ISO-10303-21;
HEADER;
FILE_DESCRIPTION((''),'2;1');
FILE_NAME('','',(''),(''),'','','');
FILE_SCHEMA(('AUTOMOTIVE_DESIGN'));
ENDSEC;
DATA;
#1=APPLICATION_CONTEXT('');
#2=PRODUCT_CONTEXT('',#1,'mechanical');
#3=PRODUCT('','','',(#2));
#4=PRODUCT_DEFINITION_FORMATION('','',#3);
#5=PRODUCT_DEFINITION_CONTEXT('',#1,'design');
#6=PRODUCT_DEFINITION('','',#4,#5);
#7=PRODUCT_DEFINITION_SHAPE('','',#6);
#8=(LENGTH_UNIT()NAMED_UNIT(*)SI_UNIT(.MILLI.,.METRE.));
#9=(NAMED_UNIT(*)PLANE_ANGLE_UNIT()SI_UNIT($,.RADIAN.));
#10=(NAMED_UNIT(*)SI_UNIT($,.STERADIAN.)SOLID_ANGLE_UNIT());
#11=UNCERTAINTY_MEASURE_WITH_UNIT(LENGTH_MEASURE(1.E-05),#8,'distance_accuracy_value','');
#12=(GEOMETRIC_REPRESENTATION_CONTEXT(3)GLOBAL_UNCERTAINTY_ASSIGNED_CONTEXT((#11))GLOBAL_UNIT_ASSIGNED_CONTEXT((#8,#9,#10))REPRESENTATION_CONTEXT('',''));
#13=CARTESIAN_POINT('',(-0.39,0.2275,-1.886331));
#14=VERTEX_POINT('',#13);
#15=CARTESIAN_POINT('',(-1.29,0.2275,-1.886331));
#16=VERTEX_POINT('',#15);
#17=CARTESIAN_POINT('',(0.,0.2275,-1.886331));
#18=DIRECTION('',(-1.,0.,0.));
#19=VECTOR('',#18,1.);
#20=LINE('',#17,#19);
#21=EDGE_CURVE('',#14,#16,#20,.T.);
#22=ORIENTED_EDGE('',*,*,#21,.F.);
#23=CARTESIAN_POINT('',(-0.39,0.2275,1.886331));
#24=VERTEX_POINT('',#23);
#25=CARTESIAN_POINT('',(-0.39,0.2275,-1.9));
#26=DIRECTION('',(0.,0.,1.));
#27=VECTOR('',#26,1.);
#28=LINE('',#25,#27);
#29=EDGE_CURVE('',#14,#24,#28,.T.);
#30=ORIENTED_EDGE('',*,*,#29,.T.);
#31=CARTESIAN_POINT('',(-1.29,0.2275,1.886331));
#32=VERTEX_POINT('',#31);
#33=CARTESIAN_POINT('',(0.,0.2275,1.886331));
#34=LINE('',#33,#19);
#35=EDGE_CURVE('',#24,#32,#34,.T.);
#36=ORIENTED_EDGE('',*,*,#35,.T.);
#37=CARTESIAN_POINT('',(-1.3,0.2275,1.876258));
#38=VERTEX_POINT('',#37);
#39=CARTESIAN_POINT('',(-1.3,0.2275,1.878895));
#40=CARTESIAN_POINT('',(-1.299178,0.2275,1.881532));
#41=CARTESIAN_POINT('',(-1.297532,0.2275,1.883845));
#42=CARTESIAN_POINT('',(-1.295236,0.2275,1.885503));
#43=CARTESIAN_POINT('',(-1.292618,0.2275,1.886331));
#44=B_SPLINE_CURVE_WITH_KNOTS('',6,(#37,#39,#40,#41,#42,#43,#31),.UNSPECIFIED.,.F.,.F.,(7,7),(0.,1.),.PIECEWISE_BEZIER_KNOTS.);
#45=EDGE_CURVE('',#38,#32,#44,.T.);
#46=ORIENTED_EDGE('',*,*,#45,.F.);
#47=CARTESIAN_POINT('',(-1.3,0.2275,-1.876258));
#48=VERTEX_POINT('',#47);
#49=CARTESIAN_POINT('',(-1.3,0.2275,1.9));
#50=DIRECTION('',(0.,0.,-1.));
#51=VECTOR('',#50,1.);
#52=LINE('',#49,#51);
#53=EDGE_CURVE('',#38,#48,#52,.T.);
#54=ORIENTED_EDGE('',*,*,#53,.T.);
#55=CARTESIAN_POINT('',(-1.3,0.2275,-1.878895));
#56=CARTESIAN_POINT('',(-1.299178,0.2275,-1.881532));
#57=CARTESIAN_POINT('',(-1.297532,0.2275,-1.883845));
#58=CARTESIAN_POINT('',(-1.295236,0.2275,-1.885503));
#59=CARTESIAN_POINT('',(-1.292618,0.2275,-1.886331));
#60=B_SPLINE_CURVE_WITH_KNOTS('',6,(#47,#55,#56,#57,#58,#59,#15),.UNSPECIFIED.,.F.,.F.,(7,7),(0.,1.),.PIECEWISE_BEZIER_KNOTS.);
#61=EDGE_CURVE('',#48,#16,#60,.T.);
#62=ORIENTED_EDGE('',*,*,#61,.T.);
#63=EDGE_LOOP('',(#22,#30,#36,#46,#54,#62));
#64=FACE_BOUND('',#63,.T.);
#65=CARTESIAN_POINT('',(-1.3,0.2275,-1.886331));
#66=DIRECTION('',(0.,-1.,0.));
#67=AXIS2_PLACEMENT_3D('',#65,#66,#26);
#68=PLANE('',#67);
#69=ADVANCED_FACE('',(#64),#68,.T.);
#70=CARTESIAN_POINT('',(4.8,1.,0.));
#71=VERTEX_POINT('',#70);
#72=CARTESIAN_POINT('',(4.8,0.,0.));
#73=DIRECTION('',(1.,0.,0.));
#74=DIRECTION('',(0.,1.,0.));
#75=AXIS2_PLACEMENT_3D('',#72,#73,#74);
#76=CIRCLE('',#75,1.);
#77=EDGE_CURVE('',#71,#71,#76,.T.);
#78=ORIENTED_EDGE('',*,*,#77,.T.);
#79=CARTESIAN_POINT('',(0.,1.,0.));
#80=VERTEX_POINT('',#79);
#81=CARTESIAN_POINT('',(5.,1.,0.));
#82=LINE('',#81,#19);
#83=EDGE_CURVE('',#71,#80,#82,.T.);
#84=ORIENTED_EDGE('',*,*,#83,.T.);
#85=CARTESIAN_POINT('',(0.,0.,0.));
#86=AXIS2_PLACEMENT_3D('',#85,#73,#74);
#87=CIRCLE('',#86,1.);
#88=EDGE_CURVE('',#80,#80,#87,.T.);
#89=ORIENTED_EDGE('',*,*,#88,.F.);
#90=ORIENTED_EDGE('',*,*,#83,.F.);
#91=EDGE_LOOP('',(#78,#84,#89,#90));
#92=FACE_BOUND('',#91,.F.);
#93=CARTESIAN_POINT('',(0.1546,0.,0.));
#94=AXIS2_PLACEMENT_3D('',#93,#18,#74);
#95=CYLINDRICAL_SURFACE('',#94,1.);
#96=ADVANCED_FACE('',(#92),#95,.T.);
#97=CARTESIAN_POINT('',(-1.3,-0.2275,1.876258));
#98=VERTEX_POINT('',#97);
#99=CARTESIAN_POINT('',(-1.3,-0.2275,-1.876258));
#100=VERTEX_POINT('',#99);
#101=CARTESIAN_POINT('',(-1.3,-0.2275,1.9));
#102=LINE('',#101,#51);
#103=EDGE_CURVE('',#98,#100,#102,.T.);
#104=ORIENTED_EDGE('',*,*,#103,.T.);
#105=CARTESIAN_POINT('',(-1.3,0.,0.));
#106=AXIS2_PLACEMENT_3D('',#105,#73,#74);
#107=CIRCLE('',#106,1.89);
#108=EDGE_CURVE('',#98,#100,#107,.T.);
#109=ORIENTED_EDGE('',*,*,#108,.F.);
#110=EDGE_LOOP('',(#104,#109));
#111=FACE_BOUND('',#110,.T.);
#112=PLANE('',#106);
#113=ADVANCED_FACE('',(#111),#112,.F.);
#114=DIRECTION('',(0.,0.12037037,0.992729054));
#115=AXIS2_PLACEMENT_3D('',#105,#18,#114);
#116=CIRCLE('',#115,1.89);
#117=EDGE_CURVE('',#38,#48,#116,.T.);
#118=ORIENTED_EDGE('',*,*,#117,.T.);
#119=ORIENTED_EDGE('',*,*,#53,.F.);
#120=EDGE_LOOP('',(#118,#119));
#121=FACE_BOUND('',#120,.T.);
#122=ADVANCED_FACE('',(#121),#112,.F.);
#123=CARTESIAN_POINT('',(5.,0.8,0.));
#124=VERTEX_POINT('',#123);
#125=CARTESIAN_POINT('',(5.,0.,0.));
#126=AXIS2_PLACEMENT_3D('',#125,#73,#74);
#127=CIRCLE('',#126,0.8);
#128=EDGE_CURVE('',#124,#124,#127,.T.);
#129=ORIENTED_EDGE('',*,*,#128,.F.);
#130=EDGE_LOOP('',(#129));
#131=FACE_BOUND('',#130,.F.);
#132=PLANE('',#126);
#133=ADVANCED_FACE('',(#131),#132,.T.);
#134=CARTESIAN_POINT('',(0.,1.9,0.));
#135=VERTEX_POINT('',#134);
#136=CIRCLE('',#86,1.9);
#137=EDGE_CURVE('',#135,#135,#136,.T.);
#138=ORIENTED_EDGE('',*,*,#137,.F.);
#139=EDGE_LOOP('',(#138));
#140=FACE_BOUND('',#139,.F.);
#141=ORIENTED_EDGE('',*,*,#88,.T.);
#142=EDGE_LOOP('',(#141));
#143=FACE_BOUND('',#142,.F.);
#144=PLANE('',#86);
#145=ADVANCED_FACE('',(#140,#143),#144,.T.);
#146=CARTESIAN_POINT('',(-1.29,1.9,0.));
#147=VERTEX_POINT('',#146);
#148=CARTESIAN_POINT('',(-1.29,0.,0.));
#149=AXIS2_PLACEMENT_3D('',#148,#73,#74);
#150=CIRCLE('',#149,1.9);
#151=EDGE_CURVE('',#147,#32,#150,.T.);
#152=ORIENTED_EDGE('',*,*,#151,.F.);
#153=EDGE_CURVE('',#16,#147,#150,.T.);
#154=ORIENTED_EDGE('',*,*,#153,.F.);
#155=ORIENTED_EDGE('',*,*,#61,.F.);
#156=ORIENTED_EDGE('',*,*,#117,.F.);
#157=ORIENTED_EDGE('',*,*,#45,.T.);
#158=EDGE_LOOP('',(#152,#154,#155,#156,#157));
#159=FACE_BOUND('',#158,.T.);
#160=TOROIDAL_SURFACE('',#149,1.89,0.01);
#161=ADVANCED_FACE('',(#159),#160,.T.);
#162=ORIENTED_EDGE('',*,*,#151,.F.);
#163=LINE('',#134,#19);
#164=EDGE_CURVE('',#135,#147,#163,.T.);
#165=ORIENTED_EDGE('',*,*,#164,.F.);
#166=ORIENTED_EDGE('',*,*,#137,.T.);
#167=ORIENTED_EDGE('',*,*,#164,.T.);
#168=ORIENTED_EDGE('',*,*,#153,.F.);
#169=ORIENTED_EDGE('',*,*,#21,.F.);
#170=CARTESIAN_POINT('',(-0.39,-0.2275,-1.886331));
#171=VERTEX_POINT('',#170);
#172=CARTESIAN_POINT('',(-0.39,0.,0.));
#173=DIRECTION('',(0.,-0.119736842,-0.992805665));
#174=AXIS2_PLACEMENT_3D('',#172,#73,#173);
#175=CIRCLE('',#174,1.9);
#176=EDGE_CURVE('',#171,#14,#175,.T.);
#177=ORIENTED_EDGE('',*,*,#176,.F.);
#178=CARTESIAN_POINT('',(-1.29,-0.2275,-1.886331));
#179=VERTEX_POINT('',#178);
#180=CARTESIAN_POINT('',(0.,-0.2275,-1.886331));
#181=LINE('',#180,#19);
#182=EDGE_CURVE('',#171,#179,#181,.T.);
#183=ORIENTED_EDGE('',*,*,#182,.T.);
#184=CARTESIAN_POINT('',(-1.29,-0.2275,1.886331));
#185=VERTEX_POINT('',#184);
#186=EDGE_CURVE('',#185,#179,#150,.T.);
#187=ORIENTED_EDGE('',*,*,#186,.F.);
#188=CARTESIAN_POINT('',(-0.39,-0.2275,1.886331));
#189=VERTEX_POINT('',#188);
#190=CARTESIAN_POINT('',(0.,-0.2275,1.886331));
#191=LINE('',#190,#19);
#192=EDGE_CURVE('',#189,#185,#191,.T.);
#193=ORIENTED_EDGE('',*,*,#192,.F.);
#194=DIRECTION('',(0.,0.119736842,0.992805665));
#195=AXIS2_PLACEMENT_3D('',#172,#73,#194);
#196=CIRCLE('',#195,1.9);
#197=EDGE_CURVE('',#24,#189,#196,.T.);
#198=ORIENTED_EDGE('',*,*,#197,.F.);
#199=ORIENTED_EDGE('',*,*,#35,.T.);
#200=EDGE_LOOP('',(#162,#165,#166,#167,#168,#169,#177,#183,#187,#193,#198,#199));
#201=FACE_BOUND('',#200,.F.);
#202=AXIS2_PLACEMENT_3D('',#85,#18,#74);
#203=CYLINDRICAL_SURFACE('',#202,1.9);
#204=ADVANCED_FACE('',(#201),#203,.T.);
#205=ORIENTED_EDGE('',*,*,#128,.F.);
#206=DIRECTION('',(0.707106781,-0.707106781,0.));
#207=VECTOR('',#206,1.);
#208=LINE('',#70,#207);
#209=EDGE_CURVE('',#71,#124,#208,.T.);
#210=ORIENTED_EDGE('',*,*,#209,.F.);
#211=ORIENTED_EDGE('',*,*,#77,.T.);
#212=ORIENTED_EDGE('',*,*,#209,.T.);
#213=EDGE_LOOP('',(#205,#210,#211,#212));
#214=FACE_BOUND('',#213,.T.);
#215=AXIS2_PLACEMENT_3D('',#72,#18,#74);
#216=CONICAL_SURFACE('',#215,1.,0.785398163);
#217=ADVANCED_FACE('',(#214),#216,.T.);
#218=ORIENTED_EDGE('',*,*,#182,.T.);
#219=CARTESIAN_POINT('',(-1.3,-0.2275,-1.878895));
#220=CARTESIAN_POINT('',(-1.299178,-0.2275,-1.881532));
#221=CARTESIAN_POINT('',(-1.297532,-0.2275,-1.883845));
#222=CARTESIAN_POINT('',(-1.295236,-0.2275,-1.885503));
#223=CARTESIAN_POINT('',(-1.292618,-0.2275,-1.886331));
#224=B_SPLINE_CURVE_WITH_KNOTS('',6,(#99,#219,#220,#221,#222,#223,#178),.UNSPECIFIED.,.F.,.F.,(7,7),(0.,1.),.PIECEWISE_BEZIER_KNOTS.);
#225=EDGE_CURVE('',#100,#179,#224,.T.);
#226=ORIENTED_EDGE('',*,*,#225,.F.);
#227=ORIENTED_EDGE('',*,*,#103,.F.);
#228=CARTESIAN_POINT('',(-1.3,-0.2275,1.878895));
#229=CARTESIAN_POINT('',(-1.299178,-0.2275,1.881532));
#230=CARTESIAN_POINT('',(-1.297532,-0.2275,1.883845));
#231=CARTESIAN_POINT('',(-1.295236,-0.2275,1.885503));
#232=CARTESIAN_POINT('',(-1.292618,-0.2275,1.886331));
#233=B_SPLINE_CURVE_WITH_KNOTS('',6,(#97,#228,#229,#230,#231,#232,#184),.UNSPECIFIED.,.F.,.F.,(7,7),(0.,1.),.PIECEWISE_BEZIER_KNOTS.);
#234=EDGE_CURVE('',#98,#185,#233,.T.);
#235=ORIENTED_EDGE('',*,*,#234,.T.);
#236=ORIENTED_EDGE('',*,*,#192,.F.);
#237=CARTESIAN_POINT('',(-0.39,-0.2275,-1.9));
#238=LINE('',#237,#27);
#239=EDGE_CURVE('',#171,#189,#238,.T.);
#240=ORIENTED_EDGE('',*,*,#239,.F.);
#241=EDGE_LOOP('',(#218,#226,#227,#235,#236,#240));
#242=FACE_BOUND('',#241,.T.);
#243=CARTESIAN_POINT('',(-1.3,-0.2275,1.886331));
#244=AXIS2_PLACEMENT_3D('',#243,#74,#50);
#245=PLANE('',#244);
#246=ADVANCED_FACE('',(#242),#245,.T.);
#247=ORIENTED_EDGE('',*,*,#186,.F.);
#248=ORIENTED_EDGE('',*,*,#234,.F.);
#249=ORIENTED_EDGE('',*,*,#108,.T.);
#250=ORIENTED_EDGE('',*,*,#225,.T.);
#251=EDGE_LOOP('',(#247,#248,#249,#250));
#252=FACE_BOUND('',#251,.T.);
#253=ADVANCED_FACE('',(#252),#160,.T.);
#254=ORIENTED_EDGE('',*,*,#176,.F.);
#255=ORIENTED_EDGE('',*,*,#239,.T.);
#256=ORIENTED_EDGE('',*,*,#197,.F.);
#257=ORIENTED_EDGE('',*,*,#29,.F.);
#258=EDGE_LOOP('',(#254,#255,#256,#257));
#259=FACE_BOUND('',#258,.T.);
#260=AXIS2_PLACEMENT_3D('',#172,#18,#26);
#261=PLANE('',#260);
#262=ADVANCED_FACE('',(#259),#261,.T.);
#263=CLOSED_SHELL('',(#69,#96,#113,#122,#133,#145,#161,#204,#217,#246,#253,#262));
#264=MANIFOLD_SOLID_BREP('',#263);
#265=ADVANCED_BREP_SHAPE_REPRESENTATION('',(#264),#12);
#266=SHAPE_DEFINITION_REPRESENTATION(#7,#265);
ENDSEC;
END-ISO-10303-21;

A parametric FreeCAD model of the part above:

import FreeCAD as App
import Part
import Sketcher


def edges_at(feature, points):
    """Names of the edges that pass closest to the given points."""
    edges = feature.Shape.Edges
    near = lambda p: min(range(len(edges)), key=lambda i: edges[i].distToShape(Part.Vertex(*p))[0])
    return sorted({f"Edge{near(p) + 1}" for p in points})

doc = App.newDocument("Part")
params = doc.addObject("Spreadsheet::Sheet", "Params")
for row, (alias, value) in enumerate([
    ("sketch1_width", "5 mm"),
    ("sketch1_width2", "1.3 mm"),
    ("sketch1_height", "1 mm"),
    ("sketch1_height2", "1.9 mm"),
    ("revolution_angle", "360 deg"),
    ("fillet_radius", "0.01 mm"),
    ("sketch2_height", "3.8 mm"),
    ("pocket1_length", "0.91 mm"),
    ("chamfer_size", "0.2 mm"),
], start=1):
    params.set(f"A{row}", alias)
    params.set(f"B{row}", "=" + value)
    params.setAlias(f"B{row}", alias)

body = doc.addObject("PartDesign::Body", "Body")

sketch1 = body.newObject("Sketcher::SketchObject", "Sketch")
sketch1.AttachmentSupport = (doc.getObject("XY_Plane"), [""])
sketch1.MapMode = "FlatFace"
sketch1.addGeometry([
    Part.LineSegment(App.Vector(-1.3, 1.9, 0), App.Vector(-1.3, 0, 0)),
    Part.LineSegment(App.Vector(-1.3, 0, 0), App.Vector(5, 0, 0)),
    Part.LineSegment(App.Vector(5, 0, 0), App.Vector(5, 1, 0)),
    Part.LineSegment(App.Vector(5, 1, 0), App.Vector(0, 1, 0)),
    Part.LineSegment(App.Vector(0, 1, 0), App.Vector(0, 1.9, 0)),
    Part.LineSegment(App.Vector(0, 1.9, 0), App.Vector(-1.3, 1.9, 0)),
], False)
sketch1.addConstraint([
    Sketcher.Constraint("Coincident", 0, 2, 1, 1),
    Sketcher.Constraint("Coincident", 1, 2, 2, 1),
    Sketcher.Constraint("Coincident", 2, 2, 3, 1),
    Sketcher.Constraint("Coincident", 3, 2, 4, 1),
    Sketcher.Constraint("Coincident", 4, 2, 5, 1),
    Sketcher.Constraint("Coincident", 5, 2, 0, 1),
    Sketcher.Constraint("Vertical", 0),
    Sketcher.Constraint("Horizontal", 1),
    Sketcher.Constraint("Vertical", 2),
    Sketcher.Constraint("Horizontal", 3),
    Sketcher.Constraint("Vertical", 4),
    Sketcher.Constraint("Horizontal", 5),
    Sketcher.Constraint("PointOnObject", 0, 2, -1),
    Sketcher.Constraint("PointOnObject", 3, 2, -2),
    Sketcher.Constraint("DistanceX", 3, 2, 3, 1, 5.0),
    Sketcher.Constraint("DistanceX", 5, 2, 5, 1, 1.3),
    Sketcher.Constraint("DistanceY", 2, 1, 2, 2, 1.0),
    Sketcher.Constraint("DistanceY", 0, 2, 0, 1, 1.9),
])
sketch1.setExpression("Constraints[14]", "Params.sketch1_width")
sketch1.setExpression("Constraints[15]", "Params.sketch1_width2")
sketch1.setExpression("Constraints[16]", "Params.sketch1_height")
sketch1.setExpression("Constraints[17]", "Params.sketch1_height2")
revolution = body.newObject("PartDesign::Revolution", "Revolution")
revolution.Profile = sketch1
revolution.ReferenceAxis = (sketch1, ["H_Axis"])
revolution.setExpression("Angle", "Params.revolution_angle")
doc.recompute()

fillet = body.newObject("PartDesign::Fillet", "Fillet")
fillet.Base = (revolution, edges_at(revolution, [(-1.3, -1.9, 0)]))
fillet.setExpression("Radius", "Params.fillet_radius")

sketch2 = body.newObject("Sketcher::SketchObject", "Sketch001")
sketch2.AttachmentSupport = (doc.getObject("YZ_Plane"), [""])
sketch2.MapMode = "FlatFace"
sketch2.AttachmentOffset = App.Placement(App.Vector(0, 0, -1.3), App.Rotation())
sketch2.addGeometry([
    Part.LineSegment(App.Vector(-0.23, 1.9, 0), App.Vector(0.23, 1.9, 0)),
    Part.LineSegment(App.Vector(0.23, 1.9, 0), App.Vector(0.23, -1.9, 0)),
    Part.LineSegment(App.Vector(0.23, -1.9, 0), App.Vector(-0.23, -1.9, 0)),
    Part.LineSegment(App.Vector(-0.23, -1.9, 0), App.Vector(-0.23, 1.9, 0)),
], False)
sketch2.addConstraint([
    Sketcher.Constraint("Coincident", 0, 2, 1, 1),
    Sketcher.Constraint("Coincident", 1, 2, 2, 1),
    Sketcher.Constraint("Coincident", 2, 2, 3, 1),
    Sketcher.Constraint("Coincident", 3, 2, 0, 1),
    Sketcher.Constraint("Horizontal", 0),
    Sketcher.Constraint("Vertical", 1),
    Sketcher.Constraint("Horizontal", 2),
    Sketcher.Constraint("Vertical", 3),
    Sketcher.Constraint("Symmetric", 0, 2, 2, 2, -1, 1),
    Sketcher.Constraint("DistanceY", 1, 2, 1, 1, 3.8),
    Sketcher.Constraint("DistanceX", 0, 1, 0, 2, 0.455),
])
sketch2.setExpression("Constraints[9]", "Params.sketch2_height")
pocket1 = body.newObject("PartDesign::Pocket", "Pocket")
pocket1.Profile = sketch2
pocket1.setExpression("Length", "Params.pocket1_length")
pocket1.Reversed = True
doc.recompute()

chamfer = body.newObject("PartDesign::Chamfer", "Chamfer")
chamfer.Base = (pocket1, edges_at(pocket1, [(5, -1, 0)]))
chamfer.setExpression("Size", "Params.chamfer_size")

doc.recompute()
